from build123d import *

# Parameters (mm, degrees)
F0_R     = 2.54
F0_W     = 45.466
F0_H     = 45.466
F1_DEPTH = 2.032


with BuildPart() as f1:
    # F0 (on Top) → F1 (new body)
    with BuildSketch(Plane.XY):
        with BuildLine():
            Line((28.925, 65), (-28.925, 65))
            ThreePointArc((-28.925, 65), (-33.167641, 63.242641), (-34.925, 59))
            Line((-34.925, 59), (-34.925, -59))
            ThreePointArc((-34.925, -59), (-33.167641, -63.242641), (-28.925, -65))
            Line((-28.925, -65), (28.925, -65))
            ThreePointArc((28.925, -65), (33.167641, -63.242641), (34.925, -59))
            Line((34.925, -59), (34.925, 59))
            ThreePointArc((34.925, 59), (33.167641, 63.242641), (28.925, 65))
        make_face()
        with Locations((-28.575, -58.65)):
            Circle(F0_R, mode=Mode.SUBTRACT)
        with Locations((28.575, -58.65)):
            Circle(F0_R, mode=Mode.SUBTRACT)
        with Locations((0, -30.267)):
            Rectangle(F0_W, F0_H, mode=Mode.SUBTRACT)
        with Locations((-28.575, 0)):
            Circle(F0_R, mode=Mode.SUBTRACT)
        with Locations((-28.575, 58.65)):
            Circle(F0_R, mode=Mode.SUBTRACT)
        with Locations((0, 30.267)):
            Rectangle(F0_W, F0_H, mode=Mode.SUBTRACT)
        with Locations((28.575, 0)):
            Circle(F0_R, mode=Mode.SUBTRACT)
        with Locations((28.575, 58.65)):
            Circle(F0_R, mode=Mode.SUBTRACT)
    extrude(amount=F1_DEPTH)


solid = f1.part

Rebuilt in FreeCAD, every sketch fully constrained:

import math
import FreeCAD as App
import Part
import Sketcher
from FreeCAD import Vector
Q = App.Units.Quantity

doc = App.newDocument("Part")
body = doc.addObject("PartDesign::Body", "Body")

sketch1 = body.newObject("Sketcher::SketchObject", "Sketch")
sketch1.AttachmentSupport = (doc.getObject("XY_Plane"), [""])
sketch1.MapMode = "FlatFace"
sketch1.addGeometry([
    Part.LineSegment(Vector(28.9, 65, 0), Vector(-28.9, 65, 0)),
    Part.ArcOfCircle(Part.Circle(Vector(-28.9, 59, 0), Vector(0, 0, 1), 6), math.radians(90), math.radians(180)),
    Part.LineSegment(Vector(-34.9, 59, 0), Vector(-34.9, -59, 0)),
    Part.ArcOfCircle(Part.Circle(Vector(-28.9, -59, 0), Vector(0, 0, 1), 6), math.radians(180), math.radians(270)),
    Part.LineSegment(Vector(-28.9, -65, 0), Vector(28.9, -65, 0)),
    Part.ArcOfCircle(Part.Circle(Vector(28.9, -59, 0), Vector(0, 0, 1), 6), math.radians(-90), math.radians(0)),
    Part.LineSegment(Vector(34.9, -59, 0), Vector(34.9, 59, 0)),
    Part.ArcOfCircle(Part.Circle(Vector(28.9, 59, 0), Vector(0, 0, 1), 6), math.radians(0), math.radians(90)),
    Part.Circle(Vector(-28.6, -58.6, 0), Vector(0, 0, 1), 2.5),
    Part.LineSegment(Vector(22.7, -53, 0), Vector(-22.7, -53, 0)),
    Part.LineSegment(Vector(-22.7, -53, 0), Vector(-22.7, -7.5, 0)),
    Part.LineSegment(Vector(-22.7, -7.5, 0), Vector(22.7, -7.5, 0)),
    Part.LineSegment(Vector(22.7, -7.5, 0), Vector(22.7, -53, 0)),
    Part.Circle(Vector(28.6, -58.6, 0), Vector(0, 0, 1), 2.5),
    Part.Circle(Vector(-28.6, 0, 0), Vector(0, 0, 1), 2.5),
    Part.LineSegment(Vector(22.7, 7.5, 0), Vector(-22.7, 7.5, 0)),
    Part.LineSegment(Vector(-22.7, 7.5, 0), Vector(-22.7, 53, 0)),
    Part.LineSegment(Vector(-22.7, 53, 0), Vector(22.7, 53, 0)),
    Part.LineSegment(Vector(22.7, 53, 0), Vector(22.7, 7.5, 0)),
    Part.Circle(Vector(-28.6, 58.6, 0), Vector(0, 0, 1), 2.5),
    Part.Circle(Vector(28.6, 0, 0), Vector(0, 0, 1), 2.5),
    Part.Circle(Vector(28.6, 58.6, 0), Vector(0, 0, 1), 2.5),
], False)
sketch1.addConstraint([
    Sketcher.Constraint("Tangent", 0, 2, 1, 1),
    Sketcher.Constraint("Tangent", 1, 2, 2, 1),
    Sketcher.Constraint("Tangent", 2, 2, 3, 1),
    Sketcher.Constraint("Tangent", 3, 2, 4, 1),
    Sketcher.Constraint("Tangent", 4, 2, 5, 1),
    Sketcher.Constraint("Tangent", 5, 2, 6, 1),
    Sketcher.Constraint("Tangent", 6, 2, 7, 1),
    Sketcher.Constraint("Tangent", 7, 2, 0, 1),
    Sketcher.Constraint("Coincident", 9, 2, 10, 1),
    Sketcher.Constraint("Coincident", 10, 2, 11, 1),
    Sketcher.Constraint("Coincident", 11, 2, 12, 1),
    Sketcher.Constraint("Coincident", 12, 2, 9, 1),
    Sketcher.Constraint("Coincident", 15, 2, 16, 1),
    Sketcher.Constraint("Coincident", 16, 2, 17, 1),
    Sketcher.Constraint("Coincident", 17, 2, 18, 1),
    Sketcher.Constraint("Coincident", 18, 2, 15, 1),
    Sketcher.Constraint("Horizontal", 0),
    Sketcher.Constraint("Vertical", 2),
    Sketcher.Constraint("Horizontal", 4),
    Sketcher.Constraint("Vertical", 6),
    Sketcher.Constraint("Horizontal", 9),
    Sketcher.Constraint("Vertical", 10),
    Sketcher.Constraint("Horizontal", 11),
    Sketcher.Constraint("Vertical", 12),
    Sketcher.Constraint("Horizontal", 15),
    Sketcher.Constraint("Vertical", 16),
    Sketcher.Constraint("Horizontal", 17),
    Sketcher.Constraint("Vertical", 18),
    Sketcher.Constraint("Equal", 1, 3),
    Sketcher.Constraint("Equal", 3, 5),
    Sketcher.Constraint("Equal", 5, 7),
    Sketcher.Constraint("Equal", 8, 13),
    Sketcher.Constraint("Equal", 13, 14),
    Sketcher.Constraint("Equal", 14, 19),
    Sketcher.Constraint("Equal", 19, 20),
    Sketcher.Constraint("Equal", 20, 21),
    Sketcher.Constraint("Symmetric", 1, 3, 5, 3, -1, 1),
    Sketcher.Constraint("Symmetric", 13, 3, 19, 3, -1, 1),
    Sketcher.Constraint("Symmetric", 14, 3, 20, 3, -1, 1),
    Sketcher.Constraint("Symmetric", 8, 3, 21, 3, -1, 1),
    Sketcher.Constraint("Symmetric", 11, 2, 15, 2, -1, 1),
    Sketcher.Constraint("Symmetric", 9, 2, 17, 2, -1, 1),
    Sketcher.Constraint("Symmetric", 8, 3, 13, 3, -2),
    Sketcher.Constraint("PointOnObject", 14, 3, -1),
    Sketcher.Constraint("Vertical", 8, 3, 14, 3),
    Sketcher.Constraint("Vertical", 10, 2, 15, 2),
    Sketcher.Constraint("Equal", 17, 10),
    Sketcher.Constraint("Diameter", 8, Q("0.2 in")),
    Sketcher.Constraint("DistanceX", 9, 2, 9, 1, Q("1.79 in")),
    Sketcher.Constraint("DistanceX", 1, 2, 21, 3, Q("2.5 in")),
    Sketcher.Constraint("Radius", 1, Q("5.999999 mm")),
    Sketcher.Constraint("DistanceX", 8, 3, 13, 3, Q("2.25 in")),
    Sketcher.Constraint("DistanceY", 19, 3, 0, 2, Q("0.25 in")),
    Sketcher.Constraint("DistanceY", 2, 2, 2, 1, Q("118 mm")),
    Sketcher.Constraint("DistanceY", 9, 2, -1, 1, Q("53 mm")),
])
pad1 = body.newObject("PartDesign::Pad", "Pad")
pad1.Profile = sketch1
pad1.Length = Q("0.08 in")

doc.recompute()
